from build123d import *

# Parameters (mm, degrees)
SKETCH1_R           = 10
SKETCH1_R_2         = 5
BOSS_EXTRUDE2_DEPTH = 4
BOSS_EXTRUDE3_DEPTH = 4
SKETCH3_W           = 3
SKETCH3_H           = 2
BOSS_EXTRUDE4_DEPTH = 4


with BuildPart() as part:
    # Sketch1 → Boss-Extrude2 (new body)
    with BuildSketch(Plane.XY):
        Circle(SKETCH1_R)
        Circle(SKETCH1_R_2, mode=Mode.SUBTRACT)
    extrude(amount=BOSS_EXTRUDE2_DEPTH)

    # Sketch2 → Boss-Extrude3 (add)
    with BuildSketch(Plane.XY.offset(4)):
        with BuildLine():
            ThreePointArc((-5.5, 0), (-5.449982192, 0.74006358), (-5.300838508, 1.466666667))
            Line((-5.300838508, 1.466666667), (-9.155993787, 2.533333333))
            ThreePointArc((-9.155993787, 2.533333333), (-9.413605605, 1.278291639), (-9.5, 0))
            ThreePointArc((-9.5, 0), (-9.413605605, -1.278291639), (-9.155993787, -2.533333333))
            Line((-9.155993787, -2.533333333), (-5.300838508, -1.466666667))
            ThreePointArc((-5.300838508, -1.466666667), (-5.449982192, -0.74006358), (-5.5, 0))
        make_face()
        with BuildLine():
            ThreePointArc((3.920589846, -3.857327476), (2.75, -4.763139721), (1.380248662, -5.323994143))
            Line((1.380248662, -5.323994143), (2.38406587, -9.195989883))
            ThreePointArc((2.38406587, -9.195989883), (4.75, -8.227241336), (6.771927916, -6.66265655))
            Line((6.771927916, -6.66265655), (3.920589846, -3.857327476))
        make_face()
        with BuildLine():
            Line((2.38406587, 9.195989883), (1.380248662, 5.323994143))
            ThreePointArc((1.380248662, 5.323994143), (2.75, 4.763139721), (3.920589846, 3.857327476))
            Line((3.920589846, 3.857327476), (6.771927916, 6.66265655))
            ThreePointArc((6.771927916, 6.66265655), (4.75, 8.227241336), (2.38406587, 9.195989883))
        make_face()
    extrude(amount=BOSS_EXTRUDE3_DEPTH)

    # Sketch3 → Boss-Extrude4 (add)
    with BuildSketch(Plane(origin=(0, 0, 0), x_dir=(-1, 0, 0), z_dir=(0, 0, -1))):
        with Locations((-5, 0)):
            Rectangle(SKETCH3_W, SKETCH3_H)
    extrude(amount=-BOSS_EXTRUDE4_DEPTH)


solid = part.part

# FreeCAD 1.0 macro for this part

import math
import FreeCAD as App
import Part
import Sketcher

V = App.Vector
Q = App.Units.Quantity


def add_polygon(sketch, points):
    """Adds a closed chain of lines whose ends are joined by coincident constraints."""
    first, n = sketch.GeometryCount, len(points)
    for a, b in zip(points, points[1:] + points[:1]):
        sketch.addGeometry(Part.LineSegment(App.Vector(*a, 0), App.Vector(*b, 0)), False)
    for i in range(n):
        sketch.addConstraint(Sketcher.Constraint("Coincident", first + i, 2, first + (i + 1) % n, 1))

doc = App.newDocument("Part")
body = doc.addObject("PartDesign::Body", "Body")

# Sketch on XY plane
sketch1 = doc.addObject("Sketcher::SketchObject", "Sketch")
body.addObject(sketch1)
sketch1.AttachmentSupport = (doc.XY_Plane, [""])
sketch1.MapMode = "FlatFace"
sketch1.addGeometry([
    Part.Circle(V(0, 0, 0), V(0, 0, 1), 10),
    Part.Circle(V(0, 0, 0), V(0, 0, 1), 5),
], False)
sketch1.addConstraint([
    Sketcher.Constraint("Coincident", 0, 3, -1, 1),
    Sketcher.Constraint("Coincident", 1, 3, -1, 1),
    Sketcher.Constraint("Diameter", 0, Q("20 mm")),
    Sketcher.Constraint("Diameter", 1, Q("10 mm")),
])
pad1 = doc.addObject("PartDesign::Pad", "Pad")
body.addObject(pad1)
pad1.Profile = sketch1
pad1.Length = 4

# Sketch on XY plane
sketch2 = doc.addObject("Sketcher::SketchObject", "Sketch001")
body.addObject(sketch2)
sketch2.AttachmentSupport = (doc.XY_Plane, [""])
sketch2.MapMode = "FlatFace"
sketch2.AttachmentOffset = App.Placement(V(0, 0, 4), App.Rotation())
sketch2.addGeometry([
    Part.ArcOfCircle(Part.Circle(V(0, 0, 0), V(0, 0, 1), 5.5), math.radians(164.53), math.radians(180)),  # 0
    Part.LineSegment(V(-5.3, 1.5, 0), V(-9.2, 2.5, 0)),  # 1
    Part.ArcOfCircle(Part.Circle(V(0, 0, 0), V(0, 0, 1), 9.5), math.radians(164.53), math.radians(180)),  # 2
    Part.ArcOfCircle(Part.Circle(V(0, 0, 0), V(0, 0, 1), 9.5), math.radians(180), math.radians(195.47)),  # 3
    Part.LineSegment(V(-9.2, -2.5, 0), V(-5.3, -1.5, 0)),  # 4
    Part.ArcOfCircle(Part.Circle(V(0, 0, 0), V(0, 0, 1), 5.5), math.radians(-180), math.radians(-164.53)),  # 5
    Part.ArcOfCircle(Part.Circle(V(0, 0, 0), V(0, 0, 1), 5.5), math.radians(-75), math.radians(-45)),  # 6
    Part.LineSegment(V(1.4, -5.3, 0), V(2.4, -9.2, 0)),  # 7
    Part.ArcOfCircle(Part.Circle(V(0, 0, 0), V(0, 0, 1), 9.5), math.radians(-75), math.radians(-45)),  # 8
    Part.LineSegment(V(6.8, -6.7, 0), V(3.9, -3.9, 0)),  # 9
    Part.LineSegment(V(2.4, 9.2, 0), V(1.4, 5.3, 0)),  # 10
    Part.ArcOfCircle(Part.Circle(V(0, 0, 0), V(0, 0, 1), 5.5), math.radians(45), math.radians(75)),  # 11
    Part.LineSegment(V(3.9, 3.9, 0), V(6.8, 6.7, 0)),  # 12
    Part.ArcOfCircle(Part.Circle(V(0, 0, 0), V(0, 0, 1), 9.5), math.radians(45), math.radians(75)),  # 13
], False)
sketch2.addConstraint([
    Sketcher.Constraint("Coincident", 0, 1, 1, 1),
    Sketcher.Constraint("Coincident", 1, 2, 2, 1),
    Sketcher.Constraint("Tangent", 2, 2, 3, 1),
    Sketcher.Constraint("Coincident", 3, 2, 4, 1),
    Sketcher.Constraint("Coincident", 4, 2, 5, 2),
    Sketcher.Constraint("Tangent", 5, 1, 0, 2),
    Sketcher.Constraint("Coincident", 6, 1, 7, 1),
    Sketcher.Constraint("Coincident", 7, 2, 8, 1),
    Sketcher.Constraint("Coincident", 8, 2, 9, 1),
    Sketcher.Constraint("Coincident", 9, 2, 6, 2),
    Sketcher.Constraint("Coincident", 10, 2, 11, 2),
    Sketcher.Constraint("Coincident", 11, 1, 12, 1),
    Sketcher.Constraint("Coincident", 12, 2, 13, 1),
    Sketcher.Constraint("Coincident", 13, 2, 10, 1),
    Sketcher.Constraint("Coincident", 0, 3, -1, 1),
    Sketcher.Constraint("Coincident", 2, 3, -1, 1),
    Sketcher.Constraint("Coincident", 6, 3, -1, 1),
    Sketcher.Constraint("Coincident", 8, 3, -1, 1),
    Sketcher.Constraint("Coincident", 11, 3, -1, 1),
    Sketcher.Constraint("Coincident", 13, 3, -1, 1),
    Sketcher.Constraint("Equal", 2, 3),
    Sketcher.Constraint("Equal", 0, 5),
    Sketcher.Constraint("Equal", 5, 6),
    Sketcher.Constraint("Equal", 3, 8),
    Sketcher.Constraint("Equal", 6, 11),
    Sketcher.Constraint("Equal", 8, 13),
    Sketcher.Constraint("PointOnObject", 2, 2, -1),
    Sketcher.Constraint("PointOnObject", 5, 1, -1),
    Sketcher.Constraint("Vertical", 1, 2, 3, 2),
    Sketcher.Constraint("Vertical", 0, 1, 4, 2),
    Sketcher.Constraint("Vertical", 6, 1, 10, 2),
    Sketcher.Constraint("Vertical", 9, 2, 11, 1),
    Sketcher.Constraint("Vertical", 8, 2, 12, 2),
    Sketcher.Constraint("Vertical", 7, 2, 13, 2),
    Sketcher.Constraint("Radius", 0, Q("5.5 mm")),
    Sketcher.Constraint("Radius", 2, Q("9.5 mm")),
    Sketcher.Constraint("DistanceY", 3, 2, 0, 1, Q("4 mm")),
    Sketcher.Constraint("DistanceX", 0, 1, -1, 1, Q("5.300839 mm")),
    Sketcher.Constraint("DistanceX", -1, 1, 6, 1, Q("1.380249 mm")),
    Sketcher.Constraint("DistanceY", 7, 2, -1, 1, Q("9.19599 mm")),
    Sketcher.Constraint("DistanceX", -1, 1, 9, 2, Q("3.92059 mm")),
    Sketcher.Constraint("DistanceX", 6, 1, 8, 2, Q("5.391679 mm")),
])
pad2 = doc.addObject("PartDesign::Pad", "Pad001")
body.addObject(pad2)
pad2.Profile = sketch2
pad2.Length = 4

# Sketch on XY plane
sketch3 = doc.addObject("Sketcher::SketchObject", "Sketch002")
body.addObject(sketch3)
sketch3.AttachmentSupport = (doc.XY_Plane, [""])
sketch3.MapMode = "FlatFace"
add_polygon(sketch3, [(6.5, 1), (6.5, -1), (3.5, -1), (3.5, 1)])  # lines 0-3
sketch3.addConstraint([
    Sketcher.Constraint("Vertical", 0),
    Sketcher.Constraint("Horizontal", 1),
    Sketcher.Constraint("Vertical", 2),
    Sketcher.Constraint("Horizontal", 3),
    Sketcher.Constraint("DistanceX", 1, 2, 1, 1, Q("3 mm")),
    Sketcher.Constraint("DistanceY", 0, 2, 0, 1, Q("2 mm")),
    Sketcher.Constraint("DistanceY", 0, 2, -1, 1, Q("1 mm")),
    Sketcher.Constraint("DistanceX", -1, 1, 0, 2, Q("6.5 mm")),
])
pad3 = doc.addObject("PartDesign::Pad", "Pad002")
body.addObject(pad3)
pad3.Profile = sketch3
pad3.Length = 4

doc.recompute()
